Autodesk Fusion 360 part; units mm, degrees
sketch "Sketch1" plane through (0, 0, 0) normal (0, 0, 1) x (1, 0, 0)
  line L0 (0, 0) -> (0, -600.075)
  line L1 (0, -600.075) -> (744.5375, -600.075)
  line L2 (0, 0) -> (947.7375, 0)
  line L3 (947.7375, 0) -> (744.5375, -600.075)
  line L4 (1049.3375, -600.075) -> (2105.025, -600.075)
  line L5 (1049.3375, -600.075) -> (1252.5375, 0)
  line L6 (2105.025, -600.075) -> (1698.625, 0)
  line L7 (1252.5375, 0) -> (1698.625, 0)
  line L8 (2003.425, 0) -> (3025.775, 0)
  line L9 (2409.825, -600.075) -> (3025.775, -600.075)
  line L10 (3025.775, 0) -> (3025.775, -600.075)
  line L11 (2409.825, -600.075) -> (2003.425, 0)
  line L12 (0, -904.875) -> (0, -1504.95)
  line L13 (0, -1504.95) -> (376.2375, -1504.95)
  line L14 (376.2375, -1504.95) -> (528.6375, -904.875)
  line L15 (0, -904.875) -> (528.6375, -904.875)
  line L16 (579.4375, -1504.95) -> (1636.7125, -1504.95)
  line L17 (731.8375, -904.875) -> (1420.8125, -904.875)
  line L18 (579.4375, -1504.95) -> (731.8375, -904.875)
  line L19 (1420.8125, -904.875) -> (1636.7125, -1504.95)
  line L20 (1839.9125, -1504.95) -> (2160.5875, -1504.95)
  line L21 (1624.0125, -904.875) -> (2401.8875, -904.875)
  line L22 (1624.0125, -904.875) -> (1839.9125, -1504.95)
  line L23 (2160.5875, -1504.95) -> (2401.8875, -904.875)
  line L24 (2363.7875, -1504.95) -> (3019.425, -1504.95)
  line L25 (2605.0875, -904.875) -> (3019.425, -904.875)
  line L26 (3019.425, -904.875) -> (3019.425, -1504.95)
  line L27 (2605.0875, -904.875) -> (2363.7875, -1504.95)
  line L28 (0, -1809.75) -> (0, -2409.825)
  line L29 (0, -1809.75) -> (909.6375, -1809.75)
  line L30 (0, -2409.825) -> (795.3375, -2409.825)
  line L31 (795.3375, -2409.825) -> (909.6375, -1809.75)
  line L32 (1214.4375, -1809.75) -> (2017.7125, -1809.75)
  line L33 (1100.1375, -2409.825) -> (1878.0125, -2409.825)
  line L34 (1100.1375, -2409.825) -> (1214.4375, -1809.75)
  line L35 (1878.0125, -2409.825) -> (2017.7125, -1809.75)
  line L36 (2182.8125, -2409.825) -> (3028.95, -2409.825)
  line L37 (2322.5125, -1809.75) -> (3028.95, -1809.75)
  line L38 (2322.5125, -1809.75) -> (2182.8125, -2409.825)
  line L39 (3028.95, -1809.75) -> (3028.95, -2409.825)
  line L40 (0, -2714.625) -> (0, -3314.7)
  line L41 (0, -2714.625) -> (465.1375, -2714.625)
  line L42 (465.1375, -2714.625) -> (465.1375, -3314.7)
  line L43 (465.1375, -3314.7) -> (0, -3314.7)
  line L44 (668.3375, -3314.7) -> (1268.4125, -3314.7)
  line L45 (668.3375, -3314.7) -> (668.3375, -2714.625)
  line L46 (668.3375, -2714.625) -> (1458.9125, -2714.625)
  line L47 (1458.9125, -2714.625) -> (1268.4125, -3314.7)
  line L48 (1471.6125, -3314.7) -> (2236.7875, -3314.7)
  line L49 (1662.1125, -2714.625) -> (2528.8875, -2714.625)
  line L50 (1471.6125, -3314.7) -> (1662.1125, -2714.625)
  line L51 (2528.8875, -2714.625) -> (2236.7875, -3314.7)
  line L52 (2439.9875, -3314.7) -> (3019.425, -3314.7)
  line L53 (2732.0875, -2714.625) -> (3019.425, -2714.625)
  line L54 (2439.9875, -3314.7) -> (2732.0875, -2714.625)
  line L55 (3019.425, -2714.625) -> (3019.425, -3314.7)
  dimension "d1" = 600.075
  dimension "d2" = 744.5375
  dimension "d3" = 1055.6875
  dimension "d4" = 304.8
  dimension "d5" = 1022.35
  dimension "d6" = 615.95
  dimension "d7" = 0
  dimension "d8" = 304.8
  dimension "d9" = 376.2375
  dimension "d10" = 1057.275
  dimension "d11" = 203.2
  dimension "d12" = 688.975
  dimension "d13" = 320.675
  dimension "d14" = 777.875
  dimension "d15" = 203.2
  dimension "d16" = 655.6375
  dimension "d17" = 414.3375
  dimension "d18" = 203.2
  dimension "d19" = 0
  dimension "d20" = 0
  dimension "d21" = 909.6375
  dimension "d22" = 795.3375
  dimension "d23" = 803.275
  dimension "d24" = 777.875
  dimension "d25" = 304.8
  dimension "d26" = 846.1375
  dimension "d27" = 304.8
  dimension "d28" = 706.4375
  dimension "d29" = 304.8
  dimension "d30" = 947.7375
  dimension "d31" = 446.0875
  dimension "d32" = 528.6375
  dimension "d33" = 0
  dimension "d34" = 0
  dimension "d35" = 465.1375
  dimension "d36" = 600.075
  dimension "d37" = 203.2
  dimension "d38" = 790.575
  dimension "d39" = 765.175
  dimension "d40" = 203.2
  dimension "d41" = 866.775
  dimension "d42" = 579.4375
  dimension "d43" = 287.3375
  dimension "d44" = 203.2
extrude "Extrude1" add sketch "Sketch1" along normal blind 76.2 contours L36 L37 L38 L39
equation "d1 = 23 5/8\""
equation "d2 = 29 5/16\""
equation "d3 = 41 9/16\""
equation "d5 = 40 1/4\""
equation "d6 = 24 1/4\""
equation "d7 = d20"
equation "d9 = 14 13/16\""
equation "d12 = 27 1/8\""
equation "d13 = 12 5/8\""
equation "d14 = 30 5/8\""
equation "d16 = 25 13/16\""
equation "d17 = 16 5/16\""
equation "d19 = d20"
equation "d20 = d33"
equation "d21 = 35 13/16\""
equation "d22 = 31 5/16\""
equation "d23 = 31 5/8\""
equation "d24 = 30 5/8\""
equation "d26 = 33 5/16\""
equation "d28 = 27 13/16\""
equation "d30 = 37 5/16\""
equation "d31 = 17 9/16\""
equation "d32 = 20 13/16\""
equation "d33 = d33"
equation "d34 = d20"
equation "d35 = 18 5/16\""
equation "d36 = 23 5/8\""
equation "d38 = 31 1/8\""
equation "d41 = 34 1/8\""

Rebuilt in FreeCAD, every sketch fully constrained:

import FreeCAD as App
import Part
import Sketcher
from FreeCAD import Vector
Q = App.Units.Quantity

doc = App.newDocument("Part")
body = doc.addObject("PartDesign::Body", "Body")

sketch1 = body.newObject("Sketcher::SketchObject", "Sketch")
sketch1.AttachmentSupport = (doc.getObject("XY_Plane"), [""])
sketch1.MapMode = "FlatFace"
sketch1.addGeometry([
    Part.LineSegment(Vector(2323, -1810, 0), Vector(2183, -2410, 0)),
    Part.LineSegment(Vector(2183, -2410, 0), Vector(3029, -2410, 0)),
    Part.LineSegment(Vector(3029, -2410, 0), Vector(3029, -1810, 0)),
    Part.LineSegment(Vector(3029, -1810, 0), Vector(2323, -1810, 0)),
], False)
sketch1.addConstraint([
    Sketcher.Constraint("Coincident", 0, 2, 1, 1),
    Sketcher.Constraint("Coincident", 1, 2, 2, 1),
    Sketcher.Constraint("Coincident", 2, 2, 3, 1),
    Sketcher.Constraint("Coincident", 3, 2, 0, 1),
    Sketcher.Constraint("Horizontal", 1),
    Sketcher.Constraint("Vertical", 2),
    Sketcher.Constraint("Horizontal", 3),
    Sketcher.Constraint("DistanceX", 1, 1, 1, 2, Q("33.3125 in")),
    Sketcher.Constraint("DistanceX", 3, 2, 3, 1, Q("27.8125 in")),
    Sketcher.Constraint("DistanceY", 2, 1, 2, 2, Q("23.625 in")),
    Sketcher.Constraint("DistanceX", -1, 1, 1, 2, Q("119.25 in")),
    Sketcher.Constraint("DistanceY", 2, 2, -1, 1, Q("71.25 in")),
])
pad1 = body.newObject("PartDesign::Pad", "Pad")
pad1.Profile = sketch1
pad1.Length = Q("3 in")

doc.recompute()
